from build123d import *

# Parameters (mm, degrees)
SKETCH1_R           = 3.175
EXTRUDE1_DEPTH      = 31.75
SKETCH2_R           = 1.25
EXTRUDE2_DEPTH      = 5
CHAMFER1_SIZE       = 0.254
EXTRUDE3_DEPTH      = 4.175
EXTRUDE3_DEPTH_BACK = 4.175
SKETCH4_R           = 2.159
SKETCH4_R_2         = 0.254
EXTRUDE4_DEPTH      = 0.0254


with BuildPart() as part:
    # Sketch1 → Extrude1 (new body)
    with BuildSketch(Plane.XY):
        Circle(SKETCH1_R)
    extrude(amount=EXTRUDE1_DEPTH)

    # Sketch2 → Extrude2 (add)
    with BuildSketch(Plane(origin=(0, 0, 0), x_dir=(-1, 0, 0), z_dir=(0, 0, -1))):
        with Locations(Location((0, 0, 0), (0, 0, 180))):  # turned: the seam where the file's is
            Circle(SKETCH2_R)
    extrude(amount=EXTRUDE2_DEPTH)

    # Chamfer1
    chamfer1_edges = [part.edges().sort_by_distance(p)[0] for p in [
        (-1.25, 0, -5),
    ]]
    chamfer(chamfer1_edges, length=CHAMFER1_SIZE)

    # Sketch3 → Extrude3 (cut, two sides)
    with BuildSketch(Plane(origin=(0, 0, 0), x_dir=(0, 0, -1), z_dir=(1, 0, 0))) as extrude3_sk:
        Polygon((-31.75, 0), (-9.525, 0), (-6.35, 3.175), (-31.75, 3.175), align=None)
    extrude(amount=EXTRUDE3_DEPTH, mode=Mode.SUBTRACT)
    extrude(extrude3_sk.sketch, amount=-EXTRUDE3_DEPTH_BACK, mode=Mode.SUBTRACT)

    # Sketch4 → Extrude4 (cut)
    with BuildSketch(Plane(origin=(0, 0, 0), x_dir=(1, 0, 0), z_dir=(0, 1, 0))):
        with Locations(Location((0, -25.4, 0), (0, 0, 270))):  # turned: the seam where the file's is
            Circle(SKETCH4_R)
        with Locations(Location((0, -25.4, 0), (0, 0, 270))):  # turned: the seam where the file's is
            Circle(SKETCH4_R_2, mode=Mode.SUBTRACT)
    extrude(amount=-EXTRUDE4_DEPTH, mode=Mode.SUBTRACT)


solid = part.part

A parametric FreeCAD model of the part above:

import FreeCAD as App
import Part
import Sketcher
Q = App.Units.Quantity


def edges_at(feature, points):
    """Names of the edges that pass closest to the given points."""
    edges = feature.Shape.Edges
    near = lambda p: min(range(len(edges)), key=lambda i: edges[i].distToShape(Part.Vertex(*p))[0])
    return sorted({f"Edge{near(p) + 1}" for p in points})


def add_polygon(sketch, points):
    """Adds a closed chain of lines whose ends are joined by coincident constraints."""
    first, n = sketch.GeometryCount, len(points)
    for a, b in zip(points, points[1:] + points[:1]):
        sketch.addGeometry(Part.LineSegment(App.Vector(*a, 0), App.Vector(*b, 0)), False)
    for i in range(n):
        sketch.addConstraint(Sketcher.Constraint("Coincident", first + i, 2, first + (i + 1) % n, 1))

doc = App.newDocument("Part")
body = doc.addObject("PartDesign::Body", "Body")

# Sketch on XY plane
sketch1 = body.newObject("Sketcher::SketchObject", "Sketch")
sketch1.AttachmentSupport = (doc.getObject("XY_Plane"), [""])
sketch1.MapMode = "FlatFace"
sketch1.addGeometry(Part.Circle(App.Vector(0, 0, 0), App.Vector(0, 0, 1), 3.2), False)
sketch1.addConstraint([
    Sketcher.Constraint("Coincident", 0, 3, -1, 1),
    Sketcher.Constraint("Diameter", 0, Q("0.25 in")),
])
pad1 = body.newObject("PartDesign::Pad", "Pad")
pad1.Profile = sketch1
pad1.Length = Q("1.25 in")

# Sketch on XY plane
sketch2 = body.newObject("Sketcher::SketchObject", "Sketch001")
sketch2.AttachmentSupport = (doc.getObject("XY_Plane"), [""])
sketch2.MapMode = "FlatFace"
sketch2.addGeometry(Part.Circle(App.Vector(0, 0, 0), App.Vector(0, 0, 1), 1.2), False)
sketch2.addConstraint([
    Sketcher.Constraint("Coincident", 0, 3, -1, 1),
    Sketcher.Constraint("Diameter", 0, 2.5),
])
pad2 = body.newObject("PartDesign::Pad", "Pad001")
pad2.Profile = sketch2
pad2.Length = 5
pad2.Reversed = True
doc.recompute()

chamfer = body.newObject("PartDesign::Chamfer", "Chamfer")
chamfer.Base = (pad2, edges_at(pad2, [(-1.25, 0, -5)]))
chamfer.Size = Q("0.01 in")

# Sketch on YZ plane
sketch3 = body.newObject("Sketcher::SketchObject", "Sketch002")
sketch3.AttachmentSupport = (doc.getObject("YZ_Plane"), [""])
sketch3.MapMode = "FlatFace"
add_polygon(sketch3, [(0, 31.8), (0, 9.5), (3.2, 6.3), (3.2, 31.8)])  # lines 0-3
sketch3.addConstraint([
    Sketcher.Constraint("Vertical", 0),
    Sketcher.Constraint("Vertical", 2),
    Sketcher.Constraint("Horizontal", 3),
    Sketcher.Constraint("PointOnObject", 0, 2, -2),
    Sketcher.Constraint("DistanceY", 2, 1, 2, 2, Q("1 in")),
    Sketcher.Constraint("Angle", 1, Q("-45 deg")),
    Sketcher.Constraint("DistanceX", 3, 2, 3, 1, Q("0.125 in")),
    Sketcher.Constraint("DistanceY", -1, 1, 1, 2, Q("0.25 in")),
])
pocket1 = body.newObject("PartDesign::Pocket", "Pocket")
pocket1.Profile = sketch3
pocket1.Type = "ThroughAll"
pocket1.Midplane = True

# Sketch on XZ plane
sketch4 = body.newObject("Sketcher::SketchObject", "Sketch003")
sketch4.AttachmentSupport = (doc.getObject("XZ_Plane"), [""])
sketch4.MapMode = "FlatFace"
sketch4.addGeometry([
    Part.Circle(App.Vector(0, 25.4, 0), App.Vector(0, 0, 1), 2.16),
    Part.Circle(App.Vector(0, 25.4, 0), App.Vector(0, 0, 1), 0.25),
], False)
sketch4.addConstraint([
    Sketcher.Constraint("Coincident", 1, 3, 0, 3),
    Sketcher.Constraint("PointOnObject", 0, 3, -2),
    Sketcher.Constraint("Diameter", 0, Q("0.17 in")),
    Sketcher.Constraint("Diameter", 1, Q("0.02 in")),
    Sketcher.Constraint("DistanceY", -1, 1, 0, 3, Q("1 in")),
])
pocket2 = body.newObject("PartDesign::Pocket", "Pocket001")
pocket2.Profile = sketch4
pocket2.Length = Q("0.001 in")
pocket2.Reversed = True

doc.recompute()
